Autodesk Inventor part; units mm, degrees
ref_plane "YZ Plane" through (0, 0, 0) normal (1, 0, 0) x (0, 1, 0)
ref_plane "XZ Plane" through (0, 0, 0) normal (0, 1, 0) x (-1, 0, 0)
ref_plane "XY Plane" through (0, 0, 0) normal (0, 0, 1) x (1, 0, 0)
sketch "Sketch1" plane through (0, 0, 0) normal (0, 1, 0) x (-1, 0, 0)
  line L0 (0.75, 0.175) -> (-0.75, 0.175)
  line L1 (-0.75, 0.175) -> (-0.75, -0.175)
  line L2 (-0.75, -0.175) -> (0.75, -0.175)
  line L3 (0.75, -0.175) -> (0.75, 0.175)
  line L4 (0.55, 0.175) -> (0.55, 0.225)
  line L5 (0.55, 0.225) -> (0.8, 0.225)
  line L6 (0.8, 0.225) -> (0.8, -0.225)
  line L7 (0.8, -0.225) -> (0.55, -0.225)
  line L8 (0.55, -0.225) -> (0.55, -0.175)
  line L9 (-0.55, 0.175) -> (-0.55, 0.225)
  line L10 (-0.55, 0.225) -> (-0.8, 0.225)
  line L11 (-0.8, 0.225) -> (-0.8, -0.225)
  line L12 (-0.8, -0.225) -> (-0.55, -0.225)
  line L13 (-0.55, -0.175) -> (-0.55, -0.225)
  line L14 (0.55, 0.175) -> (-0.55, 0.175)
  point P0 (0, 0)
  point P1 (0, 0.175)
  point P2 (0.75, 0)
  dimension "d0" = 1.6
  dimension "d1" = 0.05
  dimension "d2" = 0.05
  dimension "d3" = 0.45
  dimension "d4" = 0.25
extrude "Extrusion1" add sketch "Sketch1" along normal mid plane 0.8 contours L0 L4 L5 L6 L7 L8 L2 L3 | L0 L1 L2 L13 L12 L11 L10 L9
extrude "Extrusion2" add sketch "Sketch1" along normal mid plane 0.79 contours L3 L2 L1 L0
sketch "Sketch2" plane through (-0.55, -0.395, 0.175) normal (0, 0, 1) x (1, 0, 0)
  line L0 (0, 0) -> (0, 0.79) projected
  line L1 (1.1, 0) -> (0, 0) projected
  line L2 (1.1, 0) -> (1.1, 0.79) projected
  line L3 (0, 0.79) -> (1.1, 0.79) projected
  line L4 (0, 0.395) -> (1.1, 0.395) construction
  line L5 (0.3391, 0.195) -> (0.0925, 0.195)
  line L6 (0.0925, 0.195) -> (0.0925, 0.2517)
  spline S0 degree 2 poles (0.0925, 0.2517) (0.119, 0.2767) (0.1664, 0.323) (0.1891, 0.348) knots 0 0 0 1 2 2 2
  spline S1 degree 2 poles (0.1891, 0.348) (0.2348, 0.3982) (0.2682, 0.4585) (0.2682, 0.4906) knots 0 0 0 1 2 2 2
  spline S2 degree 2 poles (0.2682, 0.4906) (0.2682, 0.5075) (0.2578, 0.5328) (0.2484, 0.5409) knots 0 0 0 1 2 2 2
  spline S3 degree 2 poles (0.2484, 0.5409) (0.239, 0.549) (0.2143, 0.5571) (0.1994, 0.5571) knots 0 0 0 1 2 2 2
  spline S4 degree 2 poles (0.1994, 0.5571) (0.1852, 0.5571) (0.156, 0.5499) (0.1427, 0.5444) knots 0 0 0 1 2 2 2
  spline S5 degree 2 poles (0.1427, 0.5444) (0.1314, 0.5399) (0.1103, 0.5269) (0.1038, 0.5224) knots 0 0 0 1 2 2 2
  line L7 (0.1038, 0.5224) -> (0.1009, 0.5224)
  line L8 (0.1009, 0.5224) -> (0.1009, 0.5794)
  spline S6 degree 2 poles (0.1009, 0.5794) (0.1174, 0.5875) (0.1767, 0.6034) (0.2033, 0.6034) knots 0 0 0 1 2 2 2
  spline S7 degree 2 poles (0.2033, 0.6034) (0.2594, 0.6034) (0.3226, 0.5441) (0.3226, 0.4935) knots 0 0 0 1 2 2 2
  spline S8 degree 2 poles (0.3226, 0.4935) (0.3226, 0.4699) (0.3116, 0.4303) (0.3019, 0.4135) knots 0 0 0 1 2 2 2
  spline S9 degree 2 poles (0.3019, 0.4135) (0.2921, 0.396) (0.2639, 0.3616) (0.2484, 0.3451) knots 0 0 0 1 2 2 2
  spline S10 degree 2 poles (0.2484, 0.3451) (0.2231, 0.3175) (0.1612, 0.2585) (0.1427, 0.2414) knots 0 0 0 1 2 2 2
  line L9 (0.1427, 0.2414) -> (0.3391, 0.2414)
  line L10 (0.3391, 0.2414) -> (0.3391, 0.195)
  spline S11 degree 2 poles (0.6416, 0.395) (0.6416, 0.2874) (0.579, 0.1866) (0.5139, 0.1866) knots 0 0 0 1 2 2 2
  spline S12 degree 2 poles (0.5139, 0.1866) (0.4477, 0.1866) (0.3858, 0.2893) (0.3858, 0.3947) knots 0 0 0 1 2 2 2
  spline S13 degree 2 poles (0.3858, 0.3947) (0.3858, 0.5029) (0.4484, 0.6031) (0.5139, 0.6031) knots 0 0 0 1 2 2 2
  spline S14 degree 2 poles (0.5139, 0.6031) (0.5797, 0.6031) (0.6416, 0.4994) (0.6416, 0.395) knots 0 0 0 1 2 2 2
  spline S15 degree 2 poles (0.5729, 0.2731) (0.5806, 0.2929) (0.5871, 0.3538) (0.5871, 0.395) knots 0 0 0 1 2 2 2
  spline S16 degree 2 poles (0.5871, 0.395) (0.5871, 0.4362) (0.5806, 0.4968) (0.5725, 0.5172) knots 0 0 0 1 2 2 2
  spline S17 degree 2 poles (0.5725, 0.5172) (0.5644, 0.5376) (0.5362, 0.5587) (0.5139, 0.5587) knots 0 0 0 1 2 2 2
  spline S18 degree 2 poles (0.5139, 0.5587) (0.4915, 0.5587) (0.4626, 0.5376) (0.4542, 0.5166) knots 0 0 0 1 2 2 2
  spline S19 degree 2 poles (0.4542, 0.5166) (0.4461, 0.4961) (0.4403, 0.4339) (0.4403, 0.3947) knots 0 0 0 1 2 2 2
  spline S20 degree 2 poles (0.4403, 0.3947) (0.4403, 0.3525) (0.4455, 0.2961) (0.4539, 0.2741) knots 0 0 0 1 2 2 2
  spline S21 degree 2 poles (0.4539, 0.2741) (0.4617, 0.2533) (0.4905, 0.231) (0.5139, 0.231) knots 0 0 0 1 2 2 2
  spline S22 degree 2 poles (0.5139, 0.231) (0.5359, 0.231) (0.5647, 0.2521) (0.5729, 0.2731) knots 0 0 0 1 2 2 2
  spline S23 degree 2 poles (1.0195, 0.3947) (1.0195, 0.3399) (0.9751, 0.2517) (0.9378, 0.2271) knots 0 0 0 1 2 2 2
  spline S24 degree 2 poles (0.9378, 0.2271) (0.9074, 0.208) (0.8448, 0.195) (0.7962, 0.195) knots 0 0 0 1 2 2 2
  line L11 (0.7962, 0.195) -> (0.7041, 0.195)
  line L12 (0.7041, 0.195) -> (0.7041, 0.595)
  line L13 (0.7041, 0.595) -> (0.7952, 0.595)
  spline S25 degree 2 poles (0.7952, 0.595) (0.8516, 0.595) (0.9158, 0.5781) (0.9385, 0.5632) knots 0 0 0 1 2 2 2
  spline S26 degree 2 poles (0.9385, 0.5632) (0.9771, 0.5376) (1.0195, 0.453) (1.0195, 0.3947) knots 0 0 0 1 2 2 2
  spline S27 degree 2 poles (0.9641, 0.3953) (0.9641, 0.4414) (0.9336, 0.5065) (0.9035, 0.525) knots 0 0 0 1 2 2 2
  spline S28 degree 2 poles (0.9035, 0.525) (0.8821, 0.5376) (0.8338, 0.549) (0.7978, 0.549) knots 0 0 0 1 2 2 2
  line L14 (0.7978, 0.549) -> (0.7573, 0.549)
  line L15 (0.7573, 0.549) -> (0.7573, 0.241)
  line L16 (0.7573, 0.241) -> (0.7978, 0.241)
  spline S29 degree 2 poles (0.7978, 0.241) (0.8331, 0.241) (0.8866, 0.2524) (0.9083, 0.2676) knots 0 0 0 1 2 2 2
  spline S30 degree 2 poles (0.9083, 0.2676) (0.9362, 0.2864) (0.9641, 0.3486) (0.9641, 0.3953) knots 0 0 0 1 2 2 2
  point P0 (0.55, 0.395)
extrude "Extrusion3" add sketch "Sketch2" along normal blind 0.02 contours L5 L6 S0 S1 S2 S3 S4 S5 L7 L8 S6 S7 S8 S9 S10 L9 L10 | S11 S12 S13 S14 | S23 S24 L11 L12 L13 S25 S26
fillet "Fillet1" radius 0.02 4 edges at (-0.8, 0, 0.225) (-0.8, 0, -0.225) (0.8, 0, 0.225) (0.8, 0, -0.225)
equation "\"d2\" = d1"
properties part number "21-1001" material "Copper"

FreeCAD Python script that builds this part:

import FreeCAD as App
import Part
import Sketcher

V = App.Vector


def edges_at(feature, points):
    """Names of the edges that pass closest to the given points."""
    edges = feature.Shape.Edges
    near = lambda p: min(range(len(edges)), key=lambda i: edges[i].distToShape(Part.Vertex(*p))[0])
    return sorted({f"Edge{near(p) + 1}" for p in points})

doc = App.newDocument("Part")
body = doc.addObject("PartDesign::Body", "Body")
body.AllowCompound = True

# Sketch on XZ plane
sketch1 = body.newObject("Sketcher::SketchObject", "Sketch")
sketch1.AttachmentSupport = (doc.getObject("XZ_Plane"), [""])
sketch1.MapMode = "FlatFace"
sketch1.addGeometry([
    Part.LineSegment(V(-0.55, 0.17, 0), V(-0.75, 0.17, 0)),  # 0
    Part.LineSegment(V(-0.75, 0.17, 0), V(-0.75, -0.17, 0)),  # 1
    Part.LineSegment(V(-0.75, -0.17, 0), V(-0.55, -0.17, 0)),  # 2
    Part.LineSegment(V(-0.55, -0.17, 0), V(-0.55, -0.23, 0)),  # 3
    Part.LineSegment(V(-0.55, -0.23, 0), V(-0.8, -0.23, 0)),  # 4
    Part.LineSegment(V(-0.8, -0.23, 0), V(-0.8, 0.23, 0)),  # 5
    Part.LineSegment(V(-0.8, 0.23, 0), V(-0.55, 0.23, 0)),  # 6
    Part.LineSegment(V(-0.55, 0.23, 0), V(-0.55, 0.17, 0)),  # 7
    Part.LineSegment(V(0.75, 0.17, 0), V(0.55, 0.17, 0)),  # 8
    Part.LineSegment(V(0.55, 0.17, 0), V(0.55, 0.23, 0)),  # 9
    Part.LineSegment(V(0.55, 0.23, 0), V(0.8, 0.23, 0)),  # 10
    Part.LineSegment(V(0.8, 0.23, 0), V(0.8, -0.23, 0)),  # 11
    Part.LineSegment(V(0.8, -0.23, 0), V(0.55, -0.23, 0)),  # 12
    Part.LineSegment(V(0.55, -0.23, 0), V(0.55, -0.17, 0)),  # 13
    Part.LineSegment(V(0.55, -0.17, 0), V(0.75, -0.17, 0)),  # 14
    Part.LineSegment(V(0.75, -0.17, 0), V(0.75, 0.17, 0)),  # 15
], False)
sketch1.addConstraint([
    Sketcher.Constraint("Coincident", 0, 2, 1, 1),
    Sketcher.Constraint("Coincident", 1, 2, 2, 1),
    Sketcher.Constraint("Coincident", 2, 2, 3, 1),
    Sketcher.Constraint("Coincident", 3, 2, 4, 1),
    Sketcher.Constraint("Coincident", 4, 2, 5, 1),
    Sketcher.Constraint("Coincident", 5, 2, 6, 1),
    Sketcher.Constraint("Coincident", 6, 2, 7, 1),
    Sketcher.Constraint("Coincident", 7, 2, 0, 1),
    Sketcher.Constraint("Coincident", 8, 2, 9, 1),
    Sketcher.Constraint("Coincident", 9, 2, 10, 1),
    Sketcher.Constraint("Coincident", 10, 2, 11, 1),
    Sketcher.Constraint("Coincident", 11, 2, 12, 1),
    Sketcher.Constraint("Coincident", 12, 2, 13, 1),
    Sketcher.Constraint("Coincident", 13, 2, 14, 1),
    Sketcher.Constraint("Coincident", 14, 2, 15, 1),
    Sketcher.Constraint("Coincident", 15, 2, 8, 1),
    Sketcher.Constraint("Horizontal", 0),
    Sketcher.Constraint("Vertical", 1),
    Sketcher.Constraint("Horizontal", 2),
    Sketcher.Constraint("Vertical", 3),
    Sketcher.Constraint("Horizontal", 4),
    Sketcher.Constraint("Vertical", 5),
    Sketcher.Constraint("Horizontal", 6),
    Sketcher.Constraint("Vertical", 7),
    Sketcher.Constraint("Horizontal", 8),
    Sketcher.Constraint("Vertical", 9),
    Sketcher.Constraint("Horizontal", 10),
    Sketcher.Constraint("Vertical", 11),
    Sketcher.Constraint("Horizontal", 12),
    Sketcher.Constraint("Vertical", 13),
    Sketcher.Constraint("Horizontal", 14),
    Sketcher.Constraint("Vertical", 15),
    Sketcher.Constraint("Symmetric", 2, 2, 8, 2, -1, 1),
    Sketcher.Constraint("Symmetric", 4, 2, 10, 2, -1, 1),
    Sketcher.Constraint("Symmetric", 6, 2, 12, 2, -1, 1),
    Sketcher.Constraint("Symmetric", 0, 2, 14, 2, -1, 1),
    Sketcher.Constraint("Symmetric", 7, 2, 8, 2, -2),
    Sketcher.Constraint("Horizontal", 6, 2, 9, 2),
    Sketcher.Constraint("DistanceX", 4, 2, 4, 1, 0.25),
    Sketcher.Constraint("DistanceY", 3, 2, 3, 1, 0.05),
    Sketcher.Constraint("DistanceY", 5, 1, 5, 2, 0.45),
    Sketcher.Constraint("DistanceX", 4, 2, 1, 2, 0.05),
    Sketcher.Constraint("DistanceX", 4, 2, -1, 1, 0.8),
])
pad1 = body.newObject("PartDesign::Pad", "Pad")
pad1.Profile = sketch1
pad1.Length = 0.8
pad1.Midplane = True

# Sketch on XZ plane
sketch2 = body.newObject("Sketcher::SketchObject", "Sketch001")
sketch2.AttachmentSupport = (doc.getObject("XZ_Plane"), [""])
sketch2.MapMode = "FlatFace"
sketch2.addGeometry([
    Part.LineSegment(V(-0.75, -0.17, 0), V(-0.75, 0.17, 0)),
    Part.LineSegment(V(-0.75, 0.17, 0), V(0.75, 0.17, 0)),
    Part.LineSegment(V(0.75, 0.17, 0), V(0.75, -0.17, 0)),
    Part.LineSegment(V(0.75, -0.17, 0), V(-0.75, -0.17, 0)),
], False)
sketch2.addConstraint([
    Sketcher.Constraint("Coincident", 0, 2, 1, 1),
    Sketcher.Constraint("Coincident", 1, 2, 2, 1),
    Sketcher.Constraint("Coincident", 2, 2, 3, 1),
    Sketcher.Constraint("Coincident", 3, 2, 0, 1),
    Sketcher.Constraint("Vertical", 0),
    Sketcher.Constraint("Horizontal", 1),
    Sketcher.Constraint("Vertical", 2),
    Sketcher.Constraint("Horizontal", 3),
    Sketcher.Constraint("Symmetric", 0, 2, 2, 2, -1, 1),
    Sketcher.Constraint("DistanceX", 1, 1, 1, 2, 1.5),
    Sketcher.Constraint("DistanceY", 0, 1, 0, 2, 0.35),
])
pad2 = body.newObject("PartDesign::Pad", "Pad001")
pad2.Profile = sketch2
pad2.Length = 0.79
pad2.Midplane = True

# Sketch on XY plane
sketch3 = body.newObject("Sketcher::SketchObject", "Sketch002")
sketch3.AttachmentSupport = (doc.getObject("XY_Plane"), [""])
sketch3.MapMode = "FlatFace"
sketch3.AttachmentOffset = App.Placement(V(0, 0, 0.175), App.Rotation())
sketch3.addGeometry([
    Part.LineSegment(V(-0.4575, -0.2, 0), V(-0.2109, -0.2, 0)),  # 0
    Part.LineSegment(V(-0.2109, -0.2, 0), V(-0.2109, -0.1536, 0)),  # 1
    Part.LineSegment(V(-0.2109, -0.1536, 0), V(-0.4073, -0.1536, 0)),  # 2
    Part.BSplineCurve([V(-0.3016, -0.0499, 0), V(-0.3269, -0.0775, 0), V(-0.3888, -0.1365, 0), V(-0.4073, -0.1536, 0)], [3, 1, 3], [0, 1, 2], False, 2, [1, 1, 1, 1], False),  # 3
    Part.BSplineCurve([V(-0.2481, 0.0185, 0), V(-0.2579, 0.001, 0), V(-0.2861, -0.0334, 0), V(-0.3016, -0.0499, 0)], [3, 1, 3], [0, 1, 2], False, 2, [1, 1, 1, 1], False),  # 4
    Part.BSplineCurve([V(-0.2274, 0.0985, 0), V(-0.2274, 0.0749, 0), V(-0.2384, 0.0353, 0), V(-0.2481, 0.0185, 0)], [3, 1, 3], [0, 1, 2], False, 2, [1, 1, 1, 1], False),  # 5
    Part.BSplineCurve([V(-0.3467, 0.2084, 0), V(-0.2906, 0.2084, 0), V(-0.2274, 0.1491, 0), V(-0.2274, 0.0985, 0)], [3, 1, 3], [0, 1, 2], False, 2, [1, 1, 1, 1], False),  # 6
    Part.BSplineCurve([V(-0.4491, 0.1844, 0), V(-0.4326, 0.1925, 0), V(-0.3733, 0.2084, 0), V(-0.3467, 0.2084, 0)], [3, 1, 3], [0, 1, 2], False, 2, [1, 1, 1, 1], False),  # 7
    Part.LineSegment(V(-0.4491, 0.1844, 0), V(-0.4491, 0.1274, 0)),  # 8
    Part.LineSegment(V(-0.4491, 0.1274, 0), V(-0.4462, 0.1274, 0)),  # 9
    Part.BSplineCurve([V(-0.4073, 0.1494, 0), V(-0.4186, 0.1449, 0), V(-0.4397, 0.1319, 0), V(-0.4462, 0.1274, 0)], [3, 1, 3], [0, 1, 2], False, 2, [1, 1, 1, 1], False),  # 10
    Part.BSplineCurve([V(-0.3506, 0.1621, 0), V(-0.3648, 0.1621, 0), V(-0.394, 0.1549, 0), V(-0.4073, 0.1494, 0)], [3, 1, 3], [0, 1, 2], False, 2, [1, 1, 1, 1], False),  # 11
    Part.BSplineCurve([V(-0.3016, 0.1459, 0), V(-0.311, 0.154, 0), V(-0.3357, 0.1621, 0), V(-0.3506, 0.1621, 0)], [3, 1, 3], [0, 1, 2], False, 2, [1, 1, 1, 1], False),  # 12
    Part.BSplineCurve([V(-0.2818, 0.0956, 0), V(-0.2818, 0.1125, 0), V(-0.2922, 0.1378, 0), V(-0.3016, 0.1459, 0)], [3, 1, 3], [0, 1, 2], False, 2, [1, 1, 1, 1], False),  # 13
    Part.BSplineCurve([V(-0.3609, -0.047, 0), V(-0.3152, 0.0032, 0), V(-0.2818, 0.0635, 0), V(-0.2818, 0.0956, 0)], [3, 1, 3], [0, 1, 2], False, 2, [1, 1, 1, 1], False),  # 14
    Part.BSplineCurve([V(-0.4575, -0.1433, 0), V(-0.431, -0.1183, 0), V(-0.3836, -0.072, 0), V(-0.3609, -0.047, 0)], [3, 1, 3], [0, 1, 2], False, 2, [1, 1, 1, 1], False),  # 15
    Part.LineSegment(V(-0.4575, -0.1433, 0), V(-0.4575, -0.2, 0)),  # 16
    Part.BSplineCurve([V(0.0916, 0, 0), V(0.0916, -0.1076, 0), V(0.029, -0.2084, 0), V(-0.0361, -0.2084, 0)], [3, 1, 3], [0, 1, 2], False, 2, [1, 1, 1, 1], False),  # 17
    Part.BSplineCurve([V(-0.0361, 0.2081, 0), V(0.0297, 0.2081, 0), V(0.0916, 0.1044, 0), V(0.0916, 0, 0)], [3, 1, 3], [0, 1, 2], False, 2, [1, 1, 1, 1], False),  # 18
    Part.BSplineCurve([V(-0.1642, -0.0003, 0), V(-0.1642, 0.1079, 0), V(-0.1016, 0.2081, 0), V(-0.0361, 0.2081, 0)], [3, 1, 3], [0, 1, 2], False, 2, [1, 1, 1, 1], False),  # 19
    Part.BSplineCurve([V(-0.0361, -0.2084, 0), V(-0.1023, -0.2084, 0), V(-0.1642, -0.1057, 0), V(-0.1642, -0.0003, 0)], [3, 1, 3], [0, 1, 2], False, 2, [1, 1, 1, 1], False),  # 20
    Part.BSplineCurve([V(0.0229, -0.1219, 0), V(0.0306, -0.1021, 0), V(0.0371, -0.0412, 0), V(0.0371, 0, 0)], [3, 1, 3], [0, 1, 2], False, 2, [1, 1, 1, 1], False),  # 21
    Part.BSplineCurve([V(-0.0361, -0.164, 0), V(-0.0141, -0.164, 0), V(0.0147, -0.1429, 0), V(0.0229, -0.1219, 0)], [3, 1, 3], [0, 1, 2], False, 2, [1, 1, 1, 1], False),  # 22
    Part.BSplineCurve([V(-0.0961, -0.1209, 0), V(-0.0883, -0.1417, 0), V(-0.0595, -0.164, 0), V(-0.0361, -0.164, 0)], [3, 1, 3], [0, 1, 2], False, 2, [1, 1, 1, 1], False),  # 23
    Part.BSplineCurve([V(-0.1097, -0.0003, 0), V(-0.1097, -0.0425, 0), V(-0.1045, -0.0989, 0), V(-0.0961, -0.1209, 0)], [3, 1, 3], [0, 1, 2], False, 2, [1, 1, 1, 1], False),  # 24
    Part.BSplineCurve([V(-0.0958, 0.1216, 0), V(-0.1039, 0.1011, 0), V(-0.1097, 0.0389, 0), V(-0.1097, -0.0003, 0)], [3, 1, 3], [0, 1, 2], False, 2, [1, 1, 1, 1], False),  # 25
    Part.BSplineCurve([V(-0.0361, 0.1637, 0), V(-0.0585, 0.1637, 0), V(-0.0874, 0.1426, 0), V(-0.0958, 0.1216, 0)], [3, 1, 3], [0, 1, 2], False, 2, [1, 1, 1, 1], False),  # 26
    Part.BSplineCurve([V(0.0225, 0.1222, 0), V(0.0144, 0.1426, 0), V(-0.0138, 0.1637, 0), V(-0.0361, 0.1637, 0)], [3, 1, 3], [0, 1, 2], False, 2, [1, 1, 1, 1], False),  # 27
    Part.BSplineCurve([V(0.0371, 0, 0), V(0.0371, 0.0412, 0), V(0.0306, 0.1018, 0), V(0.0225, 0.1222, 0)], [3, 1, 3], [0, 1, 2], False, 2, [1, 1, 1, 1], False),  # 28
    Part.BSplineCurve([V(0.4695, -0.0003, 0), V(0.4695, -0.0551, 0), V(0.4251, -0.1433, 0), V(0.3878, -0.1679, 0)], [3, 1, 3], [0, 1, 2], False, 2, [1, 1, 1, 1], False),  # 29
    Part.BSplineCurve([V(0.3885, 0.1682, 0), V(0.4271, 0.1426, 0), V(0.4695, 0.058, 0), V(0.4695, -0.0003, 0)], [3, 1, 3], [0, 1, 2], False, 2, [1, 1, 1, 1], False),  # 30
    Part.BSplineCurve([V(0.2452, 0.2, 0), V(0.3016, 0.2, 0), V(0.3658, 0.1831, 0), V(0.3885, 0.1682, 0)], [3, 1, 3], [0, 1, 2], False, 2, [1, 1, 1, 1], False),  # 31
    Part.LineSegment(V(0.2452, 0.2, 0), V(0.1541, 0.2, 0)),  # 32
    Part.LineSegment(V(0.1541, 0.2, 0), V(0.1541, -0.2, 0)),  # 33
    Part.LineSegment(V(0.1541, -0.2, 0), V(0.2462, -0.2, 0)),  # 34
    Part.BSplineCurve([V(0.3878, -0.1679, 0), V(0.3574, -0.187, 0), V(0.2948, -0.2, 0), V(0.2462, -0.2, 0)], [3, 1, 3], [0, 1, 2], False, 2, [1, 1, 1, 1], False),  # 35
    Part.BSplineCurve([V(0.4141, 0.0003, 0), V(0.4141, 0.0464, 0), V(0.3836, 0.1115, 0), V(0.3535, 0.13, 0)], [3, 1, 3], [0, 1, 2], False, 2, [1, 1, 1, 1], False),  # 36
    Part.BSplineCurve([V(0.3583, -0.1274, 0), V(0.3862, -0.1086, 0), V(0.4141, -0.0464, 0), V(0.4141, 0.0003, 0)], [3, 1, 3], [0, 1, 2], False, 2, [1, 1, 1, 1], False),  # 37
    Part.BSplineCurve([V(0.2478, -0.154, 0), V(0.2831, -0.154, 0), V(0.3366, -0.1426, 0), V(0.3583, -0.1274, 0)], [3, 1, 3], [0, 1, 2], False, 2, [1, 1, 1, 1], False),  # 38
    Part.LineSegment(V(0.2478, -0.154, 0), V(0.2073, -0.154, 0)),  # 39
    Part.LineSegment(V(0.2073, -0.154, 0), V(0.2073, 0.154, 0)),  # 40
    Part.LineSegment(V(0.2073, 0.154, 0), V(0.2478, 0.154, 0)),  # 41
    Part.BSplineCurve([V(0.3535, 0.13, 0), V(0.3321, 0.1426, 0), V(0.2838, 0.154, 0), V(0.2478, 0.154, 0)], [3, 1, 3], [0, 1, 2], False, 2, [1, 1, 1, 1], False),  # 42
], False)
sketch3.addConstraint([
    Sketcher.Constraint("Block", 3),
    Sketcher.Constraint("Block", 4),
    Sketcher.Constraint("Block", 5),
    Sketcher.Constraint("Block", 6),
    Sketcher.Constraint("Block", 7),
    Sketcher.Constraint("Block", 10),
    Sketcher.Constraint("Block", 11),
    Sketcher.Constraint("Block", 12),
    Sketcher.Constraint("Block", 13),
    Sketcher.Constraint("Block", 14),
    Sketcher.Constraint("Block", 15),
    Sketcher.Constraint("Block", 17),
    Sketcher.Constraint("Block", 18),
    Sketcher.Constraint("Block", 19),
    Sketcher.Constraint("Block", 20),
    Sketcher.Constraint("Block", 21),
    Sketcher.Constraint("Block", 22),
    Sketcher.Constraint("Block", 23),
    Sketcher.Constraint("Block", 24),
    Sketcher.Constraint("Block", 25),
    Sketcher.Constraint("Block", 26),
    Sketcher.Constraint("Block", 27),
    Sketcher.Constraint("Block", 28),
    Sketcher.Constraint("Block", 29),
    Sketcher.Constraint("Block", 30),
    Sketcher.Constraint("Block", 31),
    Sketcher.Constraint("Block", 35),
    Sketcher.Constraint("Block", 36),
    Sketcher.Constraint("Block", 37),
    Sketcher.Constraint("Block", 38),
    Sketcher.Constraint("Block", 42),
    Sketcher.Constraint("Coincident", 0, 2, 1, 1),
    Sketcher.Constraint("Coincident", 1, 2, 2, 1),
    Sketcher.Constraint("Coincident", 2, 2, 3, 2),
    Sketcher.Constraint("Coincident", 7, 1, 8, 1),
    Sketcher.Constraint("Coincident", 8, 2, 9, 1),
    Sketcher.Constraint("Coincident", 9, 2, 10, 2),
    Sketcher.Constraint("Coincident", 15, 1, 16, 1),
    Sketcher.Constraint("Coincident", 16, 2, 0, 1),
    Sketcher.Constraint("Coincident", 31, 1, 32, 1),
    Sketcher.Constraint("Coincident", 32, 2, 33, 1),
    Sketcher.Constraint("Coincident", 33, 2, 34, 1),
    Sketcher.Constraint("Coincident", 34, 2, 35, 2),
    Sketcher.Constraint("Coincident", 38, 1, 39, 1),
    Sketcher.Constraint("Coincident", 39, 2, 40, 1),
    Sketcher.Constraint("Coincident", 40, 2, 41, 1),
    Sketcher.Constraint("Coincident", 41, 2, 42, 2),
    Sketcher.Constraint("Horizontal", 0),
    Sketcher.Constraint("Vertical", 1),
    Sketcher.Constraint("Horizontal", 2),
    Sketcher.Constraint("Vertical", 8),
    Sketcher.Constraint("Horizontal", 9),
    Sketcher.Constraint("Vertical", 16),
    Sketcher.Constraint("Horizontal", 32),
    Sketcher.Constraint("Vertical", 33),
    Sketcher.Constraint("Horizontal", 34),
    Sketcher.Constraint("Horizontal", 39),
    Sketcher.Constraint("Vertical", 40),
    Sketcher.Constraint("Horizontal", 41),
    Sketcher.Constraint("Horizontal", 16, 2, 33, 2),
    Sketcher.Constraint("DistanceX", 32, 2, 32, 1, 0.091),
    Sketcher.Constraint("DistanceX", 0, 1, 0, 2, 0.2466),
    Sketcher.Constraint("DistanceX", 39, 2, 39, 1, 0.0405),
])
pad3 = body.newObject("PartDesign::Pad", "Pad002")
pad3.Profile = sketch3
pad3.Length = 0.02
doc.recompute()

fillet = body.newObject("PartDesign::Fillet", "Fillet")
fillet.Base = (pad3, edges_at(pad3, [
    (-0.8, 0, 0.225),
    (-0.8, 0, -0.225),
    (0.8, 0, 0.225),
    (0.8, 0, -0.225),
]))
fillet.Radius = 0.02

doc.recompute()
